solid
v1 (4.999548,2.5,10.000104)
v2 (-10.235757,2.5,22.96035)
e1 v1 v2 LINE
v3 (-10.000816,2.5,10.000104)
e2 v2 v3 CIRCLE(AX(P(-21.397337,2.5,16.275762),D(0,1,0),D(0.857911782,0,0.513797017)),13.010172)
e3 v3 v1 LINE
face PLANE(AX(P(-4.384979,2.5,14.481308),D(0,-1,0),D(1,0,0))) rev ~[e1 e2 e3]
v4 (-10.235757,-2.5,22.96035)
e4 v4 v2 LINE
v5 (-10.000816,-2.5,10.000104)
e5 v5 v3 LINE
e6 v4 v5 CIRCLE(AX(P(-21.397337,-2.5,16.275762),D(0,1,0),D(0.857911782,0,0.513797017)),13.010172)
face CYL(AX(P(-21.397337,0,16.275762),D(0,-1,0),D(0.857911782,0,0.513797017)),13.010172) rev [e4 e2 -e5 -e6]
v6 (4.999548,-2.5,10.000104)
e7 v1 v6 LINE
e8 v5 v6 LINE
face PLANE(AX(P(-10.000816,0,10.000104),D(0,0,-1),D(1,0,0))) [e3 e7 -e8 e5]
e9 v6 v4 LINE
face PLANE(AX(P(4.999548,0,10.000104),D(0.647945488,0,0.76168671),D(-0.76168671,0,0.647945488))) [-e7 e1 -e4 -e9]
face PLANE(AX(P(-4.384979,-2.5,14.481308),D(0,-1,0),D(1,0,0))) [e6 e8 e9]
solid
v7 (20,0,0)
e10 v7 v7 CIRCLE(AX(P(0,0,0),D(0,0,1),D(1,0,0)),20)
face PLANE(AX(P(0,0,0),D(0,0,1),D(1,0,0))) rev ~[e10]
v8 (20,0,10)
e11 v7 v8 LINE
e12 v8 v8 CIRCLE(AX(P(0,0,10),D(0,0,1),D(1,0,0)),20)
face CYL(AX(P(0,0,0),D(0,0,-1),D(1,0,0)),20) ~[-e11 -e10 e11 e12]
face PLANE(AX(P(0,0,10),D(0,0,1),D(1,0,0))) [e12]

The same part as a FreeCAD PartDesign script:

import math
import FreeCAD as App
import Part
import Sketcher
from FreeCAD import Vector

doc = App.newDocument("Part")
body = doc.addObject("PartDesign::Body", "Body")

sketch1 = body.newObject("Sketcher::SketchObject", "Sketch")
sketch1.AttachmentSupport = (doc.getObject("XY_Plane"), [""])
sketch1.MapMode = "FlatFace"
sketch1.addGeometry(Part.Circle(Vector(0, 0, 0), Vector(0, 0, 1), 20), False)
sketch1.addConstraint([
    Sketcher.Constraint("Coincident", 0, 3, -1, 1),
    Sketcher.Constraint("Diameter", 0, 40.0),
])
pad1 = body.newObject("PartDesign::Pad", "Pad")
pad1.Profile = sketch1
pad1.Length = 10
body2 = doc.addObject("PartDesign::Body", "Body001")

sketch2 = body2.newObject("Sketcher::SketchObject", "Sketch001")
sketch2.AttachmentSupport = (doc.getObject("XZ_Plane001"), [""])
sketch2.MapMode = "FlatFace"
sketch2.addGeometry([
    Part.LineSegment(Vector(-10.000816, 10.000104, 0), Vector(4.999548, 10.000104, 0)),
    Part.LineSegment(Vector(4.999548, 10.000104, 0), Vector(-10.235757, 22.96035, 0)),
    Part.ArcOfCircle(Part.Circle(Vector(-21.397337, 16.275762, 0), Vector(0, 0, 1), 13.010172), math.radians(-28.840012), math.radians(30.91708)),
], False)
sketch2.addConstraint([
    Sketcher.Constraint("Coincident", 0, 2, 1, 1),
    Sketcher.Constraint("Coincident", 1, 2, 2, 2),
    Sketcher.Constraint("Coincident", 2, 1, 0, 1),
    Sketcher.Constraint("Horizontal", 0),
    Sketcher.Constraint("Radius", 2, 13.010172),
    Sketcher.Constraint("DistanceX", 0, 1, 0, 2, 15.000364),
    Sketcher.Constraint("DistanceY", -1, 1, 1, 2, 22.96035),
    Sketcher.Constraint("DistanceY", 0, 2, 2, 3, 6.275658),
    Sketcher.Constraint("DistanceX", 2, 3, 1, 2, 11.16158),
    Sketcher.Constraint("DistanceX", 2, 3, -1, 1, 21.397337),
])
pad2 = body2.newObject("PartDesign::Pad", "Pad001")
pad2.Profile = sketch2
pad2.Length = 5
pad2.Midplane = True

doc.recompute()
